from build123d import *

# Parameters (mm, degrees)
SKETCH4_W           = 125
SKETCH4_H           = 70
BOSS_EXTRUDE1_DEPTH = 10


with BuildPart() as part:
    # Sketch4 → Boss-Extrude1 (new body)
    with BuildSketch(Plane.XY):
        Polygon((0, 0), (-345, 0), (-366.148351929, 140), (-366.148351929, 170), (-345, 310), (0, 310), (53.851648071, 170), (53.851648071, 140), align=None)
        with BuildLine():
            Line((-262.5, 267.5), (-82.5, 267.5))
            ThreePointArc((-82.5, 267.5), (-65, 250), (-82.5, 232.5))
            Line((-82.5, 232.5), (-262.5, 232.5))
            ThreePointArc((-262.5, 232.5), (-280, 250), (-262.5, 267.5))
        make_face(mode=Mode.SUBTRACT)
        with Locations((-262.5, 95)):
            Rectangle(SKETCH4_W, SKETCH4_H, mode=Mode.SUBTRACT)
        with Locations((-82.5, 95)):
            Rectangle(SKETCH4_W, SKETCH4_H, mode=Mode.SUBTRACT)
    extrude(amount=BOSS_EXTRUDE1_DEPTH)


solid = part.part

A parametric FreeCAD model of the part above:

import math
import FreeCAD as App
import Part
import Sketcher


def add_polygon(sketch, points):
    """Adds a closed chain of lines whose ends are joined by coincident constraints."""
    first, n = sketch.GeometryCount, len(points)
    for a, b in zip(points, points[1:] + points[:1]):
        sketch.addGeometry(Part.LineSegment(App.Vector(*a, 0), App.Vector(*b, 0)), False)
    for i in range(n):
        sketch.addConstraint(Sketcher.Constraint("Coincident", first + i, 2, first + (i + 1) % n, 1))

doc = App.newDocument("Part")
params = doc.addObject("Spreadsheet::Sheet", "Params")
for row, (alias, value) in enumerate([
    ("sketch1_radius", "17.5 mm"),
    ("sketch1_width", "345 mm"),
    ("sketch1_width2", "125 mm"),
    ("sketch1_width3", "180 mm"),
    ("sketch1_height", "30 mm"),
    ("pad1_length", "10 mm"),
], start=1):
    params.set(f"A{row}", alias)
    params.set(f"B{row}", "=" + value)
    params.setAlias(f"B{row}", alias)

body = doc.addObject("PartDesign::Body", "Body")

sketch1 = doc.addObject("Sketcher::SketchObject", "Sketch")
body.addObject(sketch1)
sketch1.AttachmentSupport = (doc.XY_Plane, [""])
sketch1.MapMode = "FlatFace"
add_polygon(sketch1, [(-345, 0), (0, 0), (53.851648, 140), (53.851648, 170), (0, 310), (-345, 310), (-366.148352, 170), (-366.148352, 140)])
add_polygon(sketch1, [(-145, 60), (-145, 130), (-20, 130), (-20, 60)])
add_polygon(sketch1, [(-325, 60), (-325, 130), (-200, 130), (-200, 60)])
sketch1.addGeometry(Part.LineSegment(App.Vector(-262.5, 267.5, 0), App.Vector(-82.5, 267.5, 0)), False)
sketch1.addGeometry(Part.ArcOfCircle(Part.Circle(App.Vector(-82.5, 250, 0), App.Vector(0, 0, 1), 17.5), math.radians(-90), math.radians(90)), False)
sketch1.addGeometry(Part.LineSegment(App.Vector(-82.5, 232.5, 0), App.Vector(-262.5, 232.5, 0)), False)
sketch1.addGeometry(Part.ArcOfCircle(Part.Circle(App.Vector(-262.5, 250, 0), App.Vector(0, 0, 1), 17.5), math.radians(90), math.radians(270)), False)
sketch1.addConstraint(Sketcher.Constraint("Tangent", 16, 2, 17, 2))
sketch1.addConstraint(Sketcher.Constraint("Tangent", 17, 1, 18, 1))
sketch1.addConstraint(Sketcher.Constraint("Tangent", 18, 2, 19, 2))
sketch1.addConstraint(Sketcher.Constraint("Tangent", 19, 1, 16, 1))
sketch1.addConstraint(Sketcher.Constraint("Horizontal", 0))
sketch1.addConstraint(Sketcher.Constraint("Vertical", 2))
sketch1.addConstraint(Sketcher.Constraint("Horizontal", 4))
sketch1.addConstraint(Sketcher.Constraint("Vertical", 6))
sketch1.addConstraint(Sketcher.Constraint("Vertical", 8))
sketch1.addConstraint(Sketcher.Constraint("Horizontal", 9))
sketch1.addConstraint(Sketcher.Constraint("Vertical", 10))
sketch1.addConstraint(Sketcher.Constraint("Horizontal", 11))
sketch1.addConstraint(Sketcher.Constraint("Vertical", 12))
sketch1.addConstraint(Sketcher.Constraint("Horizontal", 13))
sketch1.addConstraint(Sketcher.Constraint("Vertical", 14))
sketch1.addConstraint(Sketcher.Constraint("Horizontal", 15))
sketch1.addConstraint(Sketcher.Constraint("Horizontal", 16))
sketch1.addConstraint(Sketcher.Constraint("Horizontal", 18))
sketch1.addConstraint(Sketcher.Constraint("Coincident", 0, 2, -1, 1))
sketch1.addConstraint(Sketcher.Constraint("PointOnObject", 3, 2, -2))
sketch1.addConstraint(Sketcher.Constraint("Horizontal", 2, 2, 5, 2))
sketch1.addConstraint(Sketcher.Constraint("Horizontal", 1, 2, 6, 2))
sketch1.addConstraint(Sketcher.Constraint("Horizontal", 9, 2, 12, 2))
sketch1.addConstraint(Sketcher.Constraint("Horizontal", 11, 2, 14, 2))
sketch1.addConstraint(Sketcher.Constraint("Vertical", 4, 2, 7, 2))
sketch1.addConstraint(Sketcher.Constraint("Equal", 11, 13))
sketch1.addConstraint(Sketcher.Constraint("Equal", 1, 3))
sketch1.addConstraint(Sketcher.Constraint("Radius", 17, 17.5))
sketch1.addConstraint(Sketcher.Constraint("DistanceX", 0, 1, 0, 2, 345.0))
sketch1.addConstraint(Sketcher.Constraint("DistanceX", 9, 1, 9, 2, 125.0))
sketch1.addConstraint(Sketcher.Constraint("DistanceX", 16, 1, 16, 2, 180.0))
sketch1.addConstraint(Sketcher.Constraint("DistanceY", 2, 1, 2, 2, 30.0))
sketch1.addConstraint(Sketcher.Constraint("DistanceY", 8, 1, 8, 2, 70.0))
sketch1.addConstraint(Sketcher.Constraint("Distance", 1, 150.0))
sketch1.addConstraint(Sketcher.Constraint("DistanceY", -1, 1, 17, 3, 250.0))
sketch1.addConstraint(Sketcher.Constraint("DistanceY", -1, 1, 1, 2, 140.0))
sketch1.addConstraint(Sketcher.Constraint("DistanceX", 8, 2, -1, 1, 145.0))
sketch1.addConstraint(Sketcher.Constraint("DistanceY", -1, 1, 8, 2, 130.0))
sketch1.addConstraint(Sketcher.Constraint("DistanceX", 12, 2, -1, 1, 325.0))
sketch1.addConstraint(Sketcher.Constraint("DistanceX", 17, 3, -1, 1, 82.5))
sketch1.addConstraint(Sketcher.Constraint("Distance", 5, 141.588322))
sketch1.setExpression("Constraints[43]", "Params.sketch1_radius")
sketch1.setExpression("Constraints[44]", "Params.sketch1_width")
sketch1.setExpression("Constraints[45]", "Params.sketch1_width2")
sketch1.setExpression("Constraints[46]", "Params.sketch1_width3")
sketch1.setExpression("Constraints[47]", "Params.sketch1_height")
pad1 = doc.addObject("PartDesign::Pad", "Pad")
body.addObject(pad1)
pad1.Profile = sketch1
pad1.setExpression("Length", "Params.pad1_length")

doc.recompute()
